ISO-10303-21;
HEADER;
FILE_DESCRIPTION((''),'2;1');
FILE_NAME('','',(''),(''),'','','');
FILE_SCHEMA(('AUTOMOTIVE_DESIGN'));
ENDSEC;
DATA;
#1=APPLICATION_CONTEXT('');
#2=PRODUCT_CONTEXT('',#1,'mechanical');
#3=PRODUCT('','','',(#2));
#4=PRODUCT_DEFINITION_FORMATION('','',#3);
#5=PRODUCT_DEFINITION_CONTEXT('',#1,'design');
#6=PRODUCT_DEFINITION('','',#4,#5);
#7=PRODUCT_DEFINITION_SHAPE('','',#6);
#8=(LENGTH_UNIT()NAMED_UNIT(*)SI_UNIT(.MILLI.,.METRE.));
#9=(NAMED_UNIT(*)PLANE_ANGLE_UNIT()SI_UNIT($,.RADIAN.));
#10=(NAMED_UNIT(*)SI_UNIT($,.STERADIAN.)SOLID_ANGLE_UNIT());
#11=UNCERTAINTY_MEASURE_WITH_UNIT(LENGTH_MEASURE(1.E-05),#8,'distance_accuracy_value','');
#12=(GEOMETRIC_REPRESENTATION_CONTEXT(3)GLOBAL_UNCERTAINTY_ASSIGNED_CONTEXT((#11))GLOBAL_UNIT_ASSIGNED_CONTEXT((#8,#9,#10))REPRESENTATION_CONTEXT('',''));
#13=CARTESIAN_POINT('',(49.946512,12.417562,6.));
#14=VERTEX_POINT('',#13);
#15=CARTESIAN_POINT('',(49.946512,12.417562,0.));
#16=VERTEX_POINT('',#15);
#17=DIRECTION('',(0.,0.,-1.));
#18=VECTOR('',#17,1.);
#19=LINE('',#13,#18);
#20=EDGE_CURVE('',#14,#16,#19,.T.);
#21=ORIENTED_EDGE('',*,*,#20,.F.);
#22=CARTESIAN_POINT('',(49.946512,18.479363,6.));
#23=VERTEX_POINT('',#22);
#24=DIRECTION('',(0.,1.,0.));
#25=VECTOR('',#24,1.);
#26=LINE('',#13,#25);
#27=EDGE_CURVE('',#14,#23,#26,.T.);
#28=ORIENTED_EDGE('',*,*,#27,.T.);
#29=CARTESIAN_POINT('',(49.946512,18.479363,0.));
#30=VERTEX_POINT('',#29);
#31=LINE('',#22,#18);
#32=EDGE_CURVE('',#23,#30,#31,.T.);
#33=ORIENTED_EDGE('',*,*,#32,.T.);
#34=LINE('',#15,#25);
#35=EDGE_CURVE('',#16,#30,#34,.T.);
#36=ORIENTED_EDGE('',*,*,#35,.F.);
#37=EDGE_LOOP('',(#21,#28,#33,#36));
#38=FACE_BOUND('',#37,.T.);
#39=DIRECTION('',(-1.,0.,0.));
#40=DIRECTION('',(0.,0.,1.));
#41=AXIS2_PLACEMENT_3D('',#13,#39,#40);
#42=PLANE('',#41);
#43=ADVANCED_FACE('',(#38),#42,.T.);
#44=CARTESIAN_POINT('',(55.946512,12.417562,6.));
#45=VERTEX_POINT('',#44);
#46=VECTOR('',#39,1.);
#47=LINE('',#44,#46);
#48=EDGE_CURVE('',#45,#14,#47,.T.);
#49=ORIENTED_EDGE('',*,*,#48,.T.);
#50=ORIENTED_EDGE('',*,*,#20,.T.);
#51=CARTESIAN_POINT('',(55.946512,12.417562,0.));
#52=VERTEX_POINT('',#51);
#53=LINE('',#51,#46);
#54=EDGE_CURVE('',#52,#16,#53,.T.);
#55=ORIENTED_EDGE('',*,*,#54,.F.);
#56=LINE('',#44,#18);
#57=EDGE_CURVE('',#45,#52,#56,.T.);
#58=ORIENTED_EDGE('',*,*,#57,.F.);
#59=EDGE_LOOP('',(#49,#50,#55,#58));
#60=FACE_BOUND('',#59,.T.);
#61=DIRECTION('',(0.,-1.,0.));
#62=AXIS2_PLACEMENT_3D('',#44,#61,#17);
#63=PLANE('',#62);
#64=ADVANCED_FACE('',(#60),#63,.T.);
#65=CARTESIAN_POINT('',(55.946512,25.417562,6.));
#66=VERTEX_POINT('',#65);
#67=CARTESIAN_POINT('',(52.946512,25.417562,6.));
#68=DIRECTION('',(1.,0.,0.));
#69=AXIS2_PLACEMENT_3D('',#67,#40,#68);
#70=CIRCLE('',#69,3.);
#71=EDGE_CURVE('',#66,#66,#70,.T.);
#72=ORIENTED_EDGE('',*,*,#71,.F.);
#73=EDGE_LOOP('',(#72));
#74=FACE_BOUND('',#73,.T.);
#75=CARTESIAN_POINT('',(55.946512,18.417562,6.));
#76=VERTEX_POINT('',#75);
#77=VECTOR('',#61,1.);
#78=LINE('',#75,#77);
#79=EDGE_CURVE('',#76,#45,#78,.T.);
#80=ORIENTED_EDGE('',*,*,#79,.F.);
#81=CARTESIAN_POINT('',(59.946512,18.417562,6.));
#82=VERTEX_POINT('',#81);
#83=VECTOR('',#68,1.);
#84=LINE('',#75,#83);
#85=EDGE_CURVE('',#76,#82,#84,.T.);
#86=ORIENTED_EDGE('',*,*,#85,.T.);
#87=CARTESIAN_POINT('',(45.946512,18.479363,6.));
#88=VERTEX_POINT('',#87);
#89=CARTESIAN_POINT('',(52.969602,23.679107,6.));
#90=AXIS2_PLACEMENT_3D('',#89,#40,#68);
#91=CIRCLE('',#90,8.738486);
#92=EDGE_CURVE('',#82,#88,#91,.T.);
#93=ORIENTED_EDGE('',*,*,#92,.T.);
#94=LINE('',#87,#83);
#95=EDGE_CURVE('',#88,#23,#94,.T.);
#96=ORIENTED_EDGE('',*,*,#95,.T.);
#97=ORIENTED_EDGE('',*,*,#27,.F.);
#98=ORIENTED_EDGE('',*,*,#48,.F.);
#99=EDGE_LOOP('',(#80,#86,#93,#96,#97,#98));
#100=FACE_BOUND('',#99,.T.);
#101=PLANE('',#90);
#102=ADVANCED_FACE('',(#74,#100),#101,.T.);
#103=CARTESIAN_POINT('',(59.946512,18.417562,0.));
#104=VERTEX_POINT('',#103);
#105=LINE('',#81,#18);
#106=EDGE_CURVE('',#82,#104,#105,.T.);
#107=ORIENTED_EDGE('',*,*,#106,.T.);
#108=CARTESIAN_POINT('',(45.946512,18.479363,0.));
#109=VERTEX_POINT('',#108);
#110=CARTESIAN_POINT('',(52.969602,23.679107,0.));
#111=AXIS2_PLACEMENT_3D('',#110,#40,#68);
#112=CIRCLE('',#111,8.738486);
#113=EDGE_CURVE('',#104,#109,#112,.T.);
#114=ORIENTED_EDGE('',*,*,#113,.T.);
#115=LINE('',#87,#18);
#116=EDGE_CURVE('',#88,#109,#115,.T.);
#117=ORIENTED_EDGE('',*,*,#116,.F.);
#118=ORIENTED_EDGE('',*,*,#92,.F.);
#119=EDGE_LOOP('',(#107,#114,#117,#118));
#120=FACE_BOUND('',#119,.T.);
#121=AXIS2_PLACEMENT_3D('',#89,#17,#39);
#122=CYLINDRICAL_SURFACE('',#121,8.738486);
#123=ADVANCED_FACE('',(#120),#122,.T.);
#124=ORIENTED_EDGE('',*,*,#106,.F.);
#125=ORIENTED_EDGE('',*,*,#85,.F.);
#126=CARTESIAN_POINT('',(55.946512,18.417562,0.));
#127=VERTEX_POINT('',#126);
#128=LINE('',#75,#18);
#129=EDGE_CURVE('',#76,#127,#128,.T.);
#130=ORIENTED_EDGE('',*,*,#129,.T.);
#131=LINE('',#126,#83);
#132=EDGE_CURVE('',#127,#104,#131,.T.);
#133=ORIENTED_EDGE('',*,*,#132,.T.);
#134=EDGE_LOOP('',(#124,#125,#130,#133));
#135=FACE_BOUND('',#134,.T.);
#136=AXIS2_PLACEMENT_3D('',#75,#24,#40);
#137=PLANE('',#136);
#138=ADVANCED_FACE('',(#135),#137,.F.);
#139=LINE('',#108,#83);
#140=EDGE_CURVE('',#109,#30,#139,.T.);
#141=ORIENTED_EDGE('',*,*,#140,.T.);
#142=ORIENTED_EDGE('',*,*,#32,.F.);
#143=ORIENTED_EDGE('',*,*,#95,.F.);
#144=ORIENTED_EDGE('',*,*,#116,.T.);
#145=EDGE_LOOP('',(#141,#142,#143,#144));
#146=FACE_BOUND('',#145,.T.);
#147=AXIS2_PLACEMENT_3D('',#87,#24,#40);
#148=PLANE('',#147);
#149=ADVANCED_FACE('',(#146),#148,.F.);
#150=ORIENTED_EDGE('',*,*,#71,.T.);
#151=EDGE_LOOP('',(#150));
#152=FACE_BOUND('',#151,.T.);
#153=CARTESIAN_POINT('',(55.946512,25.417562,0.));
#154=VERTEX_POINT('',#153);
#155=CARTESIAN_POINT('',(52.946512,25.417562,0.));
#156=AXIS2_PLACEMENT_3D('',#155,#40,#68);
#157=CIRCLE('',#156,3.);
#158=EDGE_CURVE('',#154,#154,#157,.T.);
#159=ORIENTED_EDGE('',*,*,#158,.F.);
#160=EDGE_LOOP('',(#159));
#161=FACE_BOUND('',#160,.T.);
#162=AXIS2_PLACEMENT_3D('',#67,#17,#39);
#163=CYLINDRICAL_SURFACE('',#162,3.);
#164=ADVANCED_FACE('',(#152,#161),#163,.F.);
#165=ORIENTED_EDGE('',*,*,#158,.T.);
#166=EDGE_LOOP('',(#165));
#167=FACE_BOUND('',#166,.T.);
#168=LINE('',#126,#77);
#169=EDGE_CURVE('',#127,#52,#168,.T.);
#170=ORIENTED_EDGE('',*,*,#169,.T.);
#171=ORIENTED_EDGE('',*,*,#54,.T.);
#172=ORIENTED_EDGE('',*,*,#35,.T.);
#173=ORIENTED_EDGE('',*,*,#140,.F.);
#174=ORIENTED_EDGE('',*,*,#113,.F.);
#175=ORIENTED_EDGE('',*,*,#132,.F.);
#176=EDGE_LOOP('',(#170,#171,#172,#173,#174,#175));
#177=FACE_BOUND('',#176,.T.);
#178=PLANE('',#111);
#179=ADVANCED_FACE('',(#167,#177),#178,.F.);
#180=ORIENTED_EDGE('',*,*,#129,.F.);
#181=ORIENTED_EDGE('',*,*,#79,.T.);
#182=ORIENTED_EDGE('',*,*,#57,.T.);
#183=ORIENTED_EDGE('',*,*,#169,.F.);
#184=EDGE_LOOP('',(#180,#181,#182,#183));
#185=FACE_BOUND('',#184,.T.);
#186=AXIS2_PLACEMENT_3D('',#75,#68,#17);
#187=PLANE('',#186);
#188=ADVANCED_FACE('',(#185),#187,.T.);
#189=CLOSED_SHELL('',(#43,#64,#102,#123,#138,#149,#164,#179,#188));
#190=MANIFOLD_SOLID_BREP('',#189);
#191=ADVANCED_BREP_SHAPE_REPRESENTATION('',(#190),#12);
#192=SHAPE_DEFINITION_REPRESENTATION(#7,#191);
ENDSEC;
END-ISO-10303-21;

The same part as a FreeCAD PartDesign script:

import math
import FreeCAD as App
import Part
import Sketcher

V = App.Vector
Q = App.Units.Quantity

doc = App.newDocument("Part")
body = doc.addObject("PartDesign::Body", "Body")

# Sketch on XY plane
sketch1 = body.newObject("Sketcher::SketchObject", "Sketch")
sketch1.AttachmentSupport = (doc.getObject("XY_Plane"), [""])
sketch1.MapMode = "FlatFace"
sketch1.addGeometry([
    Part.LineSegment(V(55.9, 12.4, 0), V(55.9, 18.4, 0)),  # 0
    Part.LineSegment(V(55.9, 18.4, 0), V(59.9, 18.4, 0)),  # 1
    Part.ArcOfCircle(Part.Circle(V(53, 23.7, 0), V(0, 0, 1), 8.7), math.radians(-37), math.radians(217)),  # 2
    Part.LineSegment(V(45.9, 18.5, 0), V(49.9, 18.5, 0)),  # 3
    Part.LineSegment(V(49.9, 18.5, 0), V(49.9, 12.4, 0)),  # 4
    Part.LineSegment(V(49.9, 12.4, 0), V(55.9, 12.4, 0)),  # 5
    Part.Circle(V(52.9, 25.4, 0), V(0, 0, 1), 3),  # 6
], False)
sketch1.addConstraint([
    Sketcher.Constraint("Coincident", 0, 2, 1, 1),
    Sketcher.Constraint("Coincident", 1, 2, 2, 1),
    Sketcher.Constraint("Coincident", 2, 2, 3, 1),
    Sketcher.Constraint("Coincident", 3, 2, 4, 1),
    Sketcher.Constraint("Coincident", 4, 2, 5, 1),
    Sketcher.Constraint("Coincident", 5, 2, 0, 1),
    Sketcher.Constraint("Vertical", 0),
    Sketcher.Constraint("Horizontal", 1),
    Sketcher.Constraint("Horizontal", 3),
    Sketcher.Constraint("Vertical", 4),
    Sketcher.Constraint("Horizontal", 5),
    Sketcher.Constraint("Equal", 1, 3),
    Sketcher.Constraint("Equal", 5, 0),
    Sketcher.Constraint("Diameter", 6, Q("6 mm")),
    Sketcher.Constraint("DistanceX", 1, 1, 1, 2, Q("4 mm")),
    Sketcher.Constraint("DistanceX", 5, 1, 5, 2, Q("6 mm")),
    Sketcher.Constraint("DistanceX", 6, 3, 0, 2, Q("3 mm")),
    Sketcher.Constraint("DistanceY", 0, 2, 6, 3, Q("7 mm")),
    Sketcher.Constraint("DistanceY", 4, 2, 4, 1, Q("6.061801 mm")),
    Sketcher.Constraint("Radius", 2, Q("8.738486 mm")),
    Sketcher.Constraint("DistanceY", -1, 1, 6, 3, Q("25.417562 mm")),
    Sketcher.Constraint("DistanceX", -1, 1, 2, 3, Q("52.969602 mm")),
])
pad1 = body.newObject("PartDesign::Pad", "Pad")
pad1.Profile = sketch1
pad1.Length = 6

doc.recompute()
